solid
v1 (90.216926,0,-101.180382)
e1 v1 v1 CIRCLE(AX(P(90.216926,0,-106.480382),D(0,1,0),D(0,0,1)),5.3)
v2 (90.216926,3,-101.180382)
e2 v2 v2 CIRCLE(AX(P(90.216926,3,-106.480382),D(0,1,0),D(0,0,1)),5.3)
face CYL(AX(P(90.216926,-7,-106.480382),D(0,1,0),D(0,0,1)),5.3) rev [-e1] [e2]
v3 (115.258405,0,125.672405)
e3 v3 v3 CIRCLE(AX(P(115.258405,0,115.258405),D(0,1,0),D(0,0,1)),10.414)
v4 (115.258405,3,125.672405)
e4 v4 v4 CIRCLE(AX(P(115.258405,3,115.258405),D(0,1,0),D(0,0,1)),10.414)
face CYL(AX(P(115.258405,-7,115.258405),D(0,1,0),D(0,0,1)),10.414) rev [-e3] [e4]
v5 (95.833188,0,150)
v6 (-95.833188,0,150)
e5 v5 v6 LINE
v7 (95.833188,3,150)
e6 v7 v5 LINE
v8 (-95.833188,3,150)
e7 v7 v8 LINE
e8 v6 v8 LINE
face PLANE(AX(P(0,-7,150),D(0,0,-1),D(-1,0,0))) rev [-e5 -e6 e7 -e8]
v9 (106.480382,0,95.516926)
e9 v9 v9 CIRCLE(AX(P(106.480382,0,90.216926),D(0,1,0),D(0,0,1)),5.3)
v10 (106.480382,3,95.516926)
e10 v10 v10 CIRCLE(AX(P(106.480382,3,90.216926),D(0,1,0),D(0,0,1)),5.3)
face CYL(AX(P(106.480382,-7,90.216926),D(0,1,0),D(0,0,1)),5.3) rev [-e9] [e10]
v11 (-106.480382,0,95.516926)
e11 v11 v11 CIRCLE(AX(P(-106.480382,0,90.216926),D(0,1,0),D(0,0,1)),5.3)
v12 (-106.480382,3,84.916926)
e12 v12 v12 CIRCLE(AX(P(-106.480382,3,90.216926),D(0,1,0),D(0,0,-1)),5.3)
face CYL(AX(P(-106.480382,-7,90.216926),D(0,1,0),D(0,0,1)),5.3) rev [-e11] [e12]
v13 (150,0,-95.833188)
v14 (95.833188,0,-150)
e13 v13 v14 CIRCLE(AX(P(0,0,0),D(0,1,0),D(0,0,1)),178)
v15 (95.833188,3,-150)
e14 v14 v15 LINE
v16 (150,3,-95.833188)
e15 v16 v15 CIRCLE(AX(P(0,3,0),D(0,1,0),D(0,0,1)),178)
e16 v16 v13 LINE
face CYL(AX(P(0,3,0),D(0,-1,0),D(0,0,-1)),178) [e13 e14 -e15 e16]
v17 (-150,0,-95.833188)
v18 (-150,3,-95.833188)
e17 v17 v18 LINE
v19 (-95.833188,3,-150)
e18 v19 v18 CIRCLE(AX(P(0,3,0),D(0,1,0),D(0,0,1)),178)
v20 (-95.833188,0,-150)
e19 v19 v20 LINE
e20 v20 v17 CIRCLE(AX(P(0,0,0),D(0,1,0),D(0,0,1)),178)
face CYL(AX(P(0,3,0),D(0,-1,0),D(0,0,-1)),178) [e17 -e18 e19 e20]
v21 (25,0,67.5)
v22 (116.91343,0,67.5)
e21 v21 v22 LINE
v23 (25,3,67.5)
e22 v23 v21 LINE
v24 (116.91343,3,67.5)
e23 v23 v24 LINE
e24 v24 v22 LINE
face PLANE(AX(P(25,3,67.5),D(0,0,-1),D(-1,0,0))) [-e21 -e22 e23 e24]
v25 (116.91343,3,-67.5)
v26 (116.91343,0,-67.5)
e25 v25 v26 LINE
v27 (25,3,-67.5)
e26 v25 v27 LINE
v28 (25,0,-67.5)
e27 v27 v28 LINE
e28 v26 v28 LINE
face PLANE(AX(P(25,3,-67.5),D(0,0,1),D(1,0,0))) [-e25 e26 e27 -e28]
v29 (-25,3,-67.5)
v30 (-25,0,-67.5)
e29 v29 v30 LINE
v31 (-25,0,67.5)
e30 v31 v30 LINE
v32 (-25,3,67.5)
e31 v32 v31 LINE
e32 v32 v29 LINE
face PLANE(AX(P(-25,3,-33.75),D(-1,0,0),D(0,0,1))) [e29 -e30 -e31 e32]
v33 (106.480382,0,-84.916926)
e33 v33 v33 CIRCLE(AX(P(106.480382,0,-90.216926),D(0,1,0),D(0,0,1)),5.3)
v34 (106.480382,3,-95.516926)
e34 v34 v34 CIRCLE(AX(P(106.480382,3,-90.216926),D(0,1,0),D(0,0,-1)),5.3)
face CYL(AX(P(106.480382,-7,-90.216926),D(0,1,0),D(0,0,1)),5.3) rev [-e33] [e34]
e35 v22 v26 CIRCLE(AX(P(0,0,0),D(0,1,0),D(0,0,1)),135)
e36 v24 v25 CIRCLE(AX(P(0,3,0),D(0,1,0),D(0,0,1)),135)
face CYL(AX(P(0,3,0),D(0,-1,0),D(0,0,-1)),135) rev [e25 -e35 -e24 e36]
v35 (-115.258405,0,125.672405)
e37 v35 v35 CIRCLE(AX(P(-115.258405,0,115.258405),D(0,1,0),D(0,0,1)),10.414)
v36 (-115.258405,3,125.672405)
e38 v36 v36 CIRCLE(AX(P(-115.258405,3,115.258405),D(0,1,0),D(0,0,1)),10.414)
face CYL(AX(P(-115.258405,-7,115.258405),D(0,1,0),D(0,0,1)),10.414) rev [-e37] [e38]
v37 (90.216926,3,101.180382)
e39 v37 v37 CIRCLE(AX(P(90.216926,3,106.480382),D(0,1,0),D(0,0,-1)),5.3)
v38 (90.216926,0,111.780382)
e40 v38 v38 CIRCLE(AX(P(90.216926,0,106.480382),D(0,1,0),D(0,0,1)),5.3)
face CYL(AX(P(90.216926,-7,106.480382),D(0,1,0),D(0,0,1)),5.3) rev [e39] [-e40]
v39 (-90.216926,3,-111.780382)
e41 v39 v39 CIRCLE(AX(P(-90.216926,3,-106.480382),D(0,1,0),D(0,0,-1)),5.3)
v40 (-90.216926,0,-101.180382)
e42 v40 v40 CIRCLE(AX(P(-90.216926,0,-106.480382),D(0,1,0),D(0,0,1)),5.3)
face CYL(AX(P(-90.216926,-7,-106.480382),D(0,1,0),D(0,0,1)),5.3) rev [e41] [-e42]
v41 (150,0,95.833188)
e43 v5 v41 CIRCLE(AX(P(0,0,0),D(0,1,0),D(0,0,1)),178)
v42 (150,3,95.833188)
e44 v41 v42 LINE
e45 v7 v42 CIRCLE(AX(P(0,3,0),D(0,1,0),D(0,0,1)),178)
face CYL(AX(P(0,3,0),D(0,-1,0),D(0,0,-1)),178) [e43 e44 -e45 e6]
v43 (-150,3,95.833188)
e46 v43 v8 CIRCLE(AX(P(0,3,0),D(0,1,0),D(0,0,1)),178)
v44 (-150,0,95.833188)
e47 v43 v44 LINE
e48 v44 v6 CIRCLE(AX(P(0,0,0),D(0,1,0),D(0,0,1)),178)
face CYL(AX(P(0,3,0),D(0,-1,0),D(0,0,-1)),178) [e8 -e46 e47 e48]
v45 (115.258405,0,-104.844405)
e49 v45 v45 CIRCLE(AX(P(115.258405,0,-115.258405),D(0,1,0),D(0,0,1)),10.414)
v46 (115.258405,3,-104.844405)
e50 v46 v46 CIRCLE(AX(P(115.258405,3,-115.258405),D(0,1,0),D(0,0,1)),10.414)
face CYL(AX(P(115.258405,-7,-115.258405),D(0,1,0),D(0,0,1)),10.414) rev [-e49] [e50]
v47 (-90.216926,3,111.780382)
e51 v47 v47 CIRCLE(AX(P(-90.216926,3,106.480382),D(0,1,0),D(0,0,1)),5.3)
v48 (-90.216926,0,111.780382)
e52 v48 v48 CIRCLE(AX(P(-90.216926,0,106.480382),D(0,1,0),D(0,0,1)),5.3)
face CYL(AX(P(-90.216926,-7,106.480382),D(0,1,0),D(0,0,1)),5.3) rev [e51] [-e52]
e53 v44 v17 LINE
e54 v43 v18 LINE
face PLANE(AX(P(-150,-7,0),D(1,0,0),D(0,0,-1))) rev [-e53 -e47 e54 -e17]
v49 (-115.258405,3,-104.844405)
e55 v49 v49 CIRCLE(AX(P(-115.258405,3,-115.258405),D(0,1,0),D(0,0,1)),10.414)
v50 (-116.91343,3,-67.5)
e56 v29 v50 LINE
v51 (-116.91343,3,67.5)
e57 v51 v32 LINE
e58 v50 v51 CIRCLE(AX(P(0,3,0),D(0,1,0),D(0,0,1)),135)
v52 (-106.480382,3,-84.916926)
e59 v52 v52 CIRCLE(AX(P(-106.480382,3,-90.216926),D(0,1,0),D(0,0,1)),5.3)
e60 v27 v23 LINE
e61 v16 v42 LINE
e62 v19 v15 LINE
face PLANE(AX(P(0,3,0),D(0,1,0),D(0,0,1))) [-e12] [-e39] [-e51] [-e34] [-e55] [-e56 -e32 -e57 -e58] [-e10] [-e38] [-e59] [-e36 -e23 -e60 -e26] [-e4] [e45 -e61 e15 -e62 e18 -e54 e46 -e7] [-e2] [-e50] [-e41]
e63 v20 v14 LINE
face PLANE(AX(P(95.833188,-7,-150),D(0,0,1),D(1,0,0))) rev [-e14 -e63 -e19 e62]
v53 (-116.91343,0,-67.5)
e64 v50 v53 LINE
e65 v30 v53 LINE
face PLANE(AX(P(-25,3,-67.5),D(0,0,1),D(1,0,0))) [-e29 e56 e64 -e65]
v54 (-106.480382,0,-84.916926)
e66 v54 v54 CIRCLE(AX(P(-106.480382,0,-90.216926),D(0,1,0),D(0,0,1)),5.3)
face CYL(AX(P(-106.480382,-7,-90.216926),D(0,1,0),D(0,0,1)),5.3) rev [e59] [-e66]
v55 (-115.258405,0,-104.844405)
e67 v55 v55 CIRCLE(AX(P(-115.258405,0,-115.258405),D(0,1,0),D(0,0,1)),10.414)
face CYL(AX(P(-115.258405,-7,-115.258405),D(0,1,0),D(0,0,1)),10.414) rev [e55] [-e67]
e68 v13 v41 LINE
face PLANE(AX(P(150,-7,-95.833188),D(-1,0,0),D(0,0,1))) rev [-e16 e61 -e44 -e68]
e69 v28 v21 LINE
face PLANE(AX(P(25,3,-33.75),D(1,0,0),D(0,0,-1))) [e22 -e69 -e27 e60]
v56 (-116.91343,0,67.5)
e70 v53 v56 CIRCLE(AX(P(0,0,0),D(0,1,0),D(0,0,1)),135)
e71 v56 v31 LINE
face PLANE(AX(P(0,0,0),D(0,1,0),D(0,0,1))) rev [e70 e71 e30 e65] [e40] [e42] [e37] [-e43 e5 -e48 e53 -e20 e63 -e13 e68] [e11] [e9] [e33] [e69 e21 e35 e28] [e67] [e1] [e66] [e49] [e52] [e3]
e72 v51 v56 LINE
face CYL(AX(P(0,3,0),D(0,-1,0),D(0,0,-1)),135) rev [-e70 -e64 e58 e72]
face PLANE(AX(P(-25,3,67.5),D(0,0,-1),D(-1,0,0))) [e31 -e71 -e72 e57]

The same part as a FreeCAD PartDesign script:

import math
import FreeCAD as App
import Part
import Sketcher
from FreeCAD import Vector
Q = App.Units.Quantity

doc = App.newDocument("Part")
body = doc.addObject("PartDesign::Body", "Body")

# Sketch on XZ plane
sketch1 = body.newObject("Sketcher::SketchObject", "Sketch")
sketch1.AttachmentSupport = (doc.getObject("XZ_Plane"), [""])
sketch1.MapMode = "FlatFace"
sketch1.addGeometry([
    Part.Circle(Vector(0, 0, 0), Vector(0, 0, 1), 178),  # 0
    Part.LineSegment(Vector(-25, -68, 0), Vector(-25, 68, 0)),  # 1
    Part.LineSegment(Vector(-25, 68, 0), Vector(-117, 68, 0)),  # 2
    Part.ArcOfCircle(Part.Circle(Vector(0, 0, 0), Vector(0, 0, 1), 135), math.radians(150), math.radians(210)),  # 3
    Part.LineSegment(Vector(-117, -68, 0), Vector(-25, -68, 0)),  # 4
    Part.LineSegment(Vector(25, 68, 0), Vector(25, -68, 0)),  # 5
    Part.LineSegment(Vector(25, -68, 0), Vector(117, -68, 0)),  # 6
    Part.ArcOfCircle(Part.Circle(Vector(0, 0, 0), Vector(0, 0, 1), 135), math.radians(-30), math.radians(30)),  # 7
    Part.LineSegment(Vector(117, 68, 0), Vector(25, 68, 0)),  # 8
], False)
sketch1.addConstraint([
    Sketcher.Constraint("Coincident", 1, 2, 2, 1),
    Sketcher.Constraint("Coincident", 2, 2, 3, 1),
    Sketcher.Constraint("Coincident", 3, 2, 4, 1),
    Sketcher.Constraint("Coincident", 4, 2, 1, 1),
    Sketcher.Constraint("Coincident", 5, 2, 6, 1),
    Sketcher.Constraint("Coincident", 6, 2, 7, 1),
    Sketcher.Constraint("Coincident", 7, 2, 8, 1),
    Sketcher.Constraint("Coincident", 8, 2, 5, 1),
    Sketcher.Constraint("Vertical", 1),
    Sketcher.Constraint("Horizontal", 2),
    Sketcher.Constraint("Horizontal", 4),
    Sketcher.Constraint("Vertical", 5),
    Sketcher.Constraint("Horizontal", 6),
    Sketcher.Constraint("Horizontal", 8),
    Sketcher.Constraint("Coincident", 0, 3, -1, 1),
    Sketcher.Constraint("Coincident", 3, 3, -1, 1),
    Sketcher.Constraint("Coincident", 7, 3, -1, 1),
    Sketcher.Constraint("Equal", 3, 7),
    Sketcher.Constraint("Symmetric", 1, 2, 5, 2, -1, 1),
    Sketcher.Constraint("Horizontal", 4, 2, 5, 2),
    Sketcher.Constraint("Horizontal", 2, 2, 7, 2),
    Sketcher.Constraint("Diameter", 0, Q("356 mm")),
    Sketcher.Constraint("Radius", 3, Q("135 mm")),
    Sketcher.Constraint("DistanceY", 1, 1, 1, 2, Q("135 mm")),
    Sketcher.Constraint("DistanceX", 1, 2, -1, 1, Q("25 mm")),
])
pad1 = body.newObject("PartDesign::Pad", "Pad")
pad1.Profile = sketch1
pad1.Length = 3
pad1.Reversed = True

# Sketch on XZ plane
sketch2 = body.newObject("Sketcher::SketchObject", "Sketch001")
sketch2.AttachmentSupport = (doc.getObject("XZ_Plane"), [""])
sketch2.MapMode = "FlatFace"
sketch2.AttachmentOffset = App.Placement(Vector(0, 0, -3), App.Rotation())
sketch2.addGeometry([
    Part.Circle(Vector(115, -115, 0), Vector(0, 0, 1), 10),  # 0
    Part.Circle(Vector(115, 115, 0), Vector(0, 0, 1), 10),  # 1
    Part.Circle(Vector(-115, 115, 0), Vector(0, 0, 1), 10),  # 2
    Part.Circle(Vector(-115, -115, 0), Vector(0, 0, 1), 10),  # 3
    Part.Circle(Vector(-90, 106, 0), Vector(0, 0, 1), 5),  # 4
    Part.Circle(Vector(-106, 90, 0), Vector(0, 0, 1), 5),  # 5
    Part.Circle(Vector(-106, -90, 0), Vector(0, 0, 1), 5),  # 6
    Part.Circle(Vector(-90, -106, 0), Vector(0, 0, 1), 5),  # 7
    Part.Circle(Vector(90, -106, 0), Vector(0, 0, 1), 5),  # 8
    Part.Circle(Vector(106, -90, 0), Vector(0, 0, 1), 5),  # 9
    Part.Circle(Vector(106, 90, 0), Vector(0, 0, 1), 5),  # 10
    Part.Circle(Vector(90, 106, 0), Vector(0, 0, 1), 5),  # 11
], False)
sketch2.addConstraint([
    Sketcher.Constraint("Equal", 0, 1),
    Sketcher.Constraint("Equal", 1, 2),
    Sketcher.Constraint("Equal", 2, 3),
    Sketcher.Constraint("Equal", 4, 5),
    Sketcher.Constraint("Equal", 5, 6),
    Sketcher.Constraint("Equal", 6, 7),
    Sketcher.Constraint("Equal", 7, 8),
    Sketcher.Constraint("Equal", 8, 9),
    Sketcher.Constraint("Equal", 9, 10),
    Sketcher.Constraint("Equal", 10, 11),
    Sketcher.Constraint("Symmetric", 0, 3, 2, 3, -1, 1),
    Sketcher.Constraint("Symmetric", 1, 3, 3, 3, -1, 1),
    Sketcher.Constraint("Symmetric", 4, 3, 8, 3, -1, 1),
    Sketcher.Constraint("Symmetric", 5, 3, 9, 3, -1, 1),
    Sketcher.Constraint("Symmetric", 6, 3, 10, 3, -1, 1),
    Sketcher.Constraint("Symmetric", 7, 3, 11, 3, -1, 1),
    Sketcher.Constraint("Symmetric", 1, 3, 2, 3, -2),
    Sketcher.Constraint("Symmetric", 7, 3, 8, 3, -2),
    Sketcher.Constraint("Symmetric", 6, 3, 9, 3, -2),
    Sketcher.Constraint("Diameter", 4, Q("10.6 mm")),
    Sketcher.Constraint("Diameter", 0, Q("20.828 mm")),
    Sketcher.Constraint("DistanceY", -1, 1, 4, 3, Q("106.480382 mm")),
    Sketcher.Constraint("DistanceX", 5, 3, -1, 1, Q("106.480382 mm")),
    Sketcher.Constraint("DistanceY", 0, 3, 1, 3, Q("230.516811 mm")),
    Sketcher.Constraint("DistanceX", 2, 3, 1, 3, Q("230.516811 mm")),
    Sketcher.Constraint("DistanceX", 2, 3, 4, 3, Q("25.04148 mm")),
    Sketcher.Constraint("DistanceY", 5, 3, 2, 3, Q("25.04148 mm")),
])
pocket1 = body.newObject("PartDesign::Pocket", "Pocket")
pocket1.Profile = sketch2
pocket1.Length = 10
pocket1.Reversed = True

# Sketch on XZ plane
sketch3 = body.newObject("Sketcher::SketchObject", "Sketch002")
sketch3.AttachmentSupport = (doc.getObject("XZ_Plane"), [""])
sketch3.MapMode = "FlatFace"
sketch3.AttachmentOffset = App.Placement(Vector(0, 0, -3), App.Rotation())
sketch3.addGeometry([
    Part.LineSegment(Vector(-96, -150, 0), Vector(96, -150, 0)),  # 0
    Part.ArcOfCircle(Part.Circle(Vector(0, 0, 0), Vector(0, 0, 1), 178), math.radians(-123), math.radians(-57)),  # 1
    Part.LineSegment(Vector(150, -96, 0), Vector(150, 96, 0)),  # 2
    Part.ArcOfCircle(Part.Circle(Vector(0, 0, 0), Vector(0, 0, 1), 178), math.radians(-33), math.radians(33)),  # 3
    Part.LineSegment(Vector(96, 150, 0), Vector(-96, 150, 0)),  # 4
    Part.ArcOfCircle(Part.Circle(Vector(0, 0, 0), Vector(0, 0, 1), 178), math.radians(57), math.radians(123)),  # 5
    Part.ArcOfCircle(Part.Circle(Vector(0, 0, 0), Vector(0, 0, 1), 178), math.radians(147), math.radians(213)),  # 6
    Part.LineSegment(Vector(-150, 96, 0), Vector(-150, -96, 0)),  # 7
], False)
sketch3.addConstraint([
    Sketcher.Constraint("Coincident", 0, 1, 1, 1),
    Sketcher.Constraint("Coincident", 1, 2, 0, 2),
    Sketcher.Constraint("Coincident", 2, 1, 3, 1),
    Sketcher.Constraint("Coincident", 3, 2, 2, 2),
    Sketcher.Constraint("Coincident", 4, 1, 5, 1),
    Sketcher.Constraint("Coincident", 5, 2, 4, 2),
    Sketcher.Constraint("Coincident", 6, 1, 7, 1),
    Sketcher.Constraint("Coincident", 7, 2, 6, 2),
    Sketcher.Constraint("Horizontal", 0),
    Sketcher.Constraint("Vertical", 2),
    Sketcher.Constraint("Horizontal", 4),
    Sketcher.Constraint("Vertical", 7),
    Sketcher.Constraint("Coincident", 1, 3, -1, 1),
    Sketcher.Constraint("Coincident", 3, 3, -1, 1),
    Sketcher.Constraint("Coincident", 5, 3, -1, 1),
    Sketcher.Constraint("Coincident", 6, 3, -1, 1),
    Sketcher.Constraint("Equal", 1, 3),
    Sketcher.Constraint("Equal", 3, 5),
    Sketcher.Constraint("Equal", 5, 6),
    Sketcher.Constraint("Horizontal", 3, 2, 6, 1),
    Sketcher.Constraint("Vertical", 1, 2, 4, 1),
    Sketcher.Constraint("Equal", 4, 2),
    Sketcher.Constraint("Radius", 1, Q("178 mm")),
    Sketcher.Constraint("DistanceY", 0, 1, -1, 1, Q("150 mm")),
])
pocket2 = body.newObject("PartDesign::Pocket", "Pocket001")
pocket2.Profile = sketch3
pocket2.Length = 10
pocket2.Reversed = True

doc.recompute()
